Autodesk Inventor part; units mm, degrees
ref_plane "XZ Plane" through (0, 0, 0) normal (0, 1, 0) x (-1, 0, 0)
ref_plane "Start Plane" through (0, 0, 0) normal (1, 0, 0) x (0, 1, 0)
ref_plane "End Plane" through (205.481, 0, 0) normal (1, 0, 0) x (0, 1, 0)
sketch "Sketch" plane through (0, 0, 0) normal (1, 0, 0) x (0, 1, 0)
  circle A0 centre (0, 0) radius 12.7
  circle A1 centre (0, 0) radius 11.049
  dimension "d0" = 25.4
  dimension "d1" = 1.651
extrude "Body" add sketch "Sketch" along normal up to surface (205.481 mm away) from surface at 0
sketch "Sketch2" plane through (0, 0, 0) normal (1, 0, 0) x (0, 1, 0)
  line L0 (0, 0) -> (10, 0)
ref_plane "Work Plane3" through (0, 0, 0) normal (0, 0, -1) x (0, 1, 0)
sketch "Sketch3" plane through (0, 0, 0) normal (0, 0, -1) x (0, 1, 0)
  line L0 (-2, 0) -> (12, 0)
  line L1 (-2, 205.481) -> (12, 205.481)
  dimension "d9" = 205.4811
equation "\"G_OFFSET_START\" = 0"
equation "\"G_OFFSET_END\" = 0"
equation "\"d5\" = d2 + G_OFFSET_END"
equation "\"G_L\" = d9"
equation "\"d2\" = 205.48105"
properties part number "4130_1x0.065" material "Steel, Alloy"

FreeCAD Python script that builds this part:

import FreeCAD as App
import Part
import Sketcher
Q = App.Units.Quantity

doc = App.newDocument("Part")
params = doc.addObject("Spreadsheet::Sheet", "Params")
for row, (alias, value) in enumerate([
    ("sketch1_diameter", "1 in"),
    ("sketch1_diameter2", "0.87 in"),
    ("pad1_length", "8.0898031 in"),
], start=1):
    params.set(f"A{row}", alias)
    params.set(f"B{row}", "=" + value)
    params.setAlias(f"B{row}", alias)

body = doc.addObject("PartDesign::Body", "Body")

# Sketch on YZ plane
sketch1 = body.newObject("Sketcher::SketchObject", "Sketch")
sketch1.AttachmentSupport = (doc.getObject("YZ_Plane"), [""])
sketch1.MapMode = "FlatFace"
sketch1.addGeometry(Part.Circle(App.Vector(0, 0, 0), App.Vector(0, 0, 1), 12.7), False)
sketch1.addGeometry(Part.Circle(App.Vector(0, 0, 0), App.Vector(0, 0, 1), 11.049), False)
sketch1.addConstraint(Sketcher.Constraint("Coincident", 0, 3, -1, 1))
sketch1.addConstraint(Sketcher.Constraint("Coincident", 1, 3, -1, 1))
sketch1.addConstraint(Sketcher.Constraint("Diameter", 0, Q("1 in")))
sketch1.addConstraint(Sketcher.Constraint("Diameter", 1, Q("0.87 in")))
sketch1.setExpression("Constraints[2]", "Params.sketch1_diameter")
sketch1.setExpression("Constraints[3]", "Params.sketch1_diameter2")
pad1 = body.newObject("PartDesign::Pad", "Pad")
pad1.Profile = sketch1
pad1.setExpression("Length", "Params.pad1_length")

doc.recompute()
